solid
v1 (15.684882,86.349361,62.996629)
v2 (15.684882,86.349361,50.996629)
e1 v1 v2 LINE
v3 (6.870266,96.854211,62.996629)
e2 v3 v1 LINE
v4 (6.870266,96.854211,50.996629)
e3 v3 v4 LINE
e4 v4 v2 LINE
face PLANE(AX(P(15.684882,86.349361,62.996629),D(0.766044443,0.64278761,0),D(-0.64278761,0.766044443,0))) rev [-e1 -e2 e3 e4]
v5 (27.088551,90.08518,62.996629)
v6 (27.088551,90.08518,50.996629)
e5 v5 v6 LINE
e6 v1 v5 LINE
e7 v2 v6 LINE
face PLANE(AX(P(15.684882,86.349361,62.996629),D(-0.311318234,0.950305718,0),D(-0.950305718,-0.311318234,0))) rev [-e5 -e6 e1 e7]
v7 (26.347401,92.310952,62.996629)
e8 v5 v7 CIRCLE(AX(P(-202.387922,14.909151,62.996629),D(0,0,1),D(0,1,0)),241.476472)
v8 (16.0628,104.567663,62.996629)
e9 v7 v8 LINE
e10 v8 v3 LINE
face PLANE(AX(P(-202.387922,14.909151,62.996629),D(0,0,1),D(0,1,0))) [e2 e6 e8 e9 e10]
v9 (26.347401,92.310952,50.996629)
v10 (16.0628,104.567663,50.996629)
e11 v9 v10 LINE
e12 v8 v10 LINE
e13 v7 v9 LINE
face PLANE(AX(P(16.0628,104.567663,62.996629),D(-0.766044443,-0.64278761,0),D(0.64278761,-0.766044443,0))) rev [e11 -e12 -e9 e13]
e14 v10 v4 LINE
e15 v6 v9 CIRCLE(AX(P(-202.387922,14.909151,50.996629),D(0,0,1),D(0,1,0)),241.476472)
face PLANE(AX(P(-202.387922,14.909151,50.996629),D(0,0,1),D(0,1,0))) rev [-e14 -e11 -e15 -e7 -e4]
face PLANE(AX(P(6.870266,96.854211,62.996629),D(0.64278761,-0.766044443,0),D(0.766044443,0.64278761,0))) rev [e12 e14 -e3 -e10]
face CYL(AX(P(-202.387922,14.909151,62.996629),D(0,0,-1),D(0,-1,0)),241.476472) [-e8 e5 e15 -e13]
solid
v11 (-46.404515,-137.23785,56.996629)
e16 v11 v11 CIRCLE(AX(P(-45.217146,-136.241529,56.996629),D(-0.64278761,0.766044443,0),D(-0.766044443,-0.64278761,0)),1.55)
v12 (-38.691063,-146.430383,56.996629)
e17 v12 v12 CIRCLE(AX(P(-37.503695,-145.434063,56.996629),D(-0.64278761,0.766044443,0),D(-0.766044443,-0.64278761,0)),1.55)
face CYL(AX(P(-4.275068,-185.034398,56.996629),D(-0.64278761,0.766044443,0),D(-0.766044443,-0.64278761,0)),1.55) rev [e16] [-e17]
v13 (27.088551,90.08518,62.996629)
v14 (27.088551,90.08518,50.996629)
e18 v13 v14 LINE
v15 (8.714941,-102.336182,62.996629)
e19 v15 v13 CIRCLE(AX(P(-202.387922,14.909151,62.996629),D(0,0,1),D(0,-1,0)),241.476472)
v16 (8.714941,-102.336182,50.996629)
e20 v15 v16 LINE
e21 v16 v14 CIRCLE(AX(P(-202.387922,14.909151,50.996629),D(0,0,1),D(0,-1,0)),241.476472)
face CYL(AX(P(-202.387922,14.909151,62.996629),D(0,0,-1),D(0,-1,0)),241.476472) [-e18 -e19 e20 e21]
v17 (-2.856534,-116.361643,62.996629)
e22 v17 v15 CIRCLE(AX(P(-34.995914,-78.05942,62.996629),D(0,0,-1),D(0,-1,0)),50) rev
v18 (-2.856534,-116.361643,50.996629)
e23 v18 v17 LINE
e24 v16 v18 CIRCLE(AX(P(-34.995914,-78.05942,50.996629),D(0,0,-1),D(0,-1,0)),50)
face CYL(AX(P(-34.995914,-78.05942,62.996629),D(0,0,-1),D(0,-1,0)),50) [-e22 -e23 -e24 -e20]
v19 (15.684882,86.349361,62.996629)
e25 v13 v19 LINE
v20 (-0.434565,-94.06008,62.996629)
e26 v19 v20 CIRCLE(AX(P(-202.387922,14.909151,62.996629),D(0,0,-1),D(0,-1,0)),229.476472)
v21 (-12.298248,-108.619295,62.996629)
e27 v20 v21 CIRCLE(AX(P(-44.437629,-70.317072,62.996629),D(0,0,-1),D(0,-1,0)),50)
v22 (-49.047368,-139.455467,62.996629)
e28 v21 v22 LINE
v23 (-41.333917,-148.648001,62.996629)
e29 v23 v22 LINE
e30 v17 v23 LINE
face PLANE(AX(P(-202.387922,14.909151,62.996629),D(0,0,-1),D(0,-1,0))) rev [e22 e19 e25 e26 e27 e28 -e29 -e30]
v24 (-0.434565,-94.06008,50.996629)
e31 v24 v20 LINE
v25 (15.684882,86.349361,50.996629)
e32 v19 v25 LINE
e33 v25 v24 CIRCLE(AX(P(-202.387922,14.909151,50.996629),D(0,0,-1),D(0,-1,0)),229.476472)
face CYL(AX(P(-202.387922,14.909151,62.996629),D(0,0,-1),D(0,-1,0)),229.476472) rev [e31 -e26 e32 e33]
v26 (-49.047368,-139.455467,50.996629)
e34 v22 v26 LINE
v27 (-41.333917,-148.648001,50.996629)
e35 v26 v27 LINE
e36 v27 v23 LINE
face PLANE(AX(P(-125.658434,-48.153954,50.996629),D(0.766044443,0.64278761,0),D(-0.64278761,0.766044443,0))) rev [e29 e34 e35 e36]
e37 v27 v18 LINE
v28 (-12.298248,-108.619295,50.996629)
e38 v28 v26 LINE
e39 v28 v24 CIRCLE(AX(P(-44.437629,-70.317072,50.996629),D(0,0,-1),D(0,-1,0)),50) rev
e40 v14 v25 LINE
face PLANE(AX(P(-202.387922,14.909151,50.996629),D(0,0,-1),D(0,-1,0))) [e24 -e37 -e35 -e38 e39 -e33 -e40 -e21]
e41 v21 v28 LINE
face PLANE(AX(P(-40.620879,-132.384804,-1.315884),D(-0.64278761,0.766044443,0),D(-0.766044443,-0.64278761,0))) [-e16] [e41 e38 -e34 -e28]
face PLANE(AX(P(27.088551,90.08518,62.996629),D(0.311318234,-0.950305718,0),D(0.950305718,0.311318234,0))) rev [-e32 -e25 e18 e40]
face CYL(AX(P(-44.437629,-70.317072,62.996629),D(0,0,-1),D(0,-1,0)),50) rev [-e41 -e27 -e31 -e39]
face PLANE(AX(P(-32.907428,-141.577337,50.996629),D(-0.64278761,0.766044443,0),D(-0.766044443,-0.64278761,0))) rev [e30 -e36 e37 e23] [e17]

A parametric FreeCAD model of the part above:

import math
import FreeCAD as App
import Part
import Sketcher
from FreeCAD import Vector
Q = App.Units.Quantity


def edges_at(feature, points):
    """Names of the edges that pass closest to the given points."""
    edges = feature.Shape.Edges
    near = lambda p: min(range(len(edges)), key=lambda i: edges[i].distToShape(Part.Vertex(*p))[0])
    return sorted({f"Edge{near(p) + 1}" for p in points})


def add_polygon(sketch, points):
    """Adds a closed chain of lines whose ends are joined by coincident constraints."""
    first, n = sketch.GeometryCount, len(points)
    for a, b in zip(points, points[1:] + points[:1]):
        sketch.addGeometry(Part.LineSegment(App.Vector(*a, 0), App.Vector(*b, 0)), False)
    for i in range(n):
        sketch.addConstraint(Sketcher.Constraint("Coincident", first + i, 2, first + (i + 1) % n, 1))

doc = App.newDocument("Part")
body = doc.addObject("PartDesign::Body", "Body")

# Sketch on YZ plane
sketch1 = body.newObject("Sketcher::SketchObject", "Sketch")
sketch1.AttachmentSupport = (doc.getObject("YZ_Plane"), [""])
sketch1.MapMode = "FlatFace"
sketch1.addGeometry([
    Part.LineSegment(Vector(73, 231, 0), Vector(65, 240, 0)),
    Part.ArcOfCircle(Part.Circle(Vector(241, 75, 0), Vector(0, 0, 1), 241), math.radians(137), math.radians(198)),
    Part.LineSegment(Vector(12, 0, 0), Vector(23, 4, 0)),
    Part.ArcOfCircle(Part.Circle(Vector(241, 75, 0), Vector(0, 0, 1), 229), math.radians(137), math.radians(198)),
], False)
sketch1.addConstraint([
    Sketcher.Constraint("Coincident", 0, 2, 1, 1),
    Sketcher.Constraint("Coincident", 1, 2, 2, 1),
    Sketcher.Constraint("Coincident", 2, 2, 3, 2),
    Sketcher.Constraint("Coincident", 3, 1, 0, 1),
    Sketcher.Constraint("Coincident", 3, 3, 1, 3),
    Sketcher.Constraint("PointOnObject", 1, 2, -1),
    Sketcher.Constraint("Angle", 0, Q("130 deg")),
    Sketcher.Constraint("Distance", 2, Q("12 mm")),
    Sketcher.Constraint("DistanceX", -1, 1, 0, 2, Q("65 mm")),
    Sketcher.Constraint("DistanceY", -1, 1, 0, 2, Q("240 mm")),
    Sketcher.Constraint("DistanceX", -1, 1, 1, 2, Q("12 mm")),
    Sketcher.Constraint("Radius", 1, Q("241.476472 mm")),
    Sketcher.Constraint("DistanceX", -1, 1, 2, 2, Q("23.403669 mm")),
])
pad1 = body.newObject("PartDesign::Pad", "Pad")
pad1.Profile = sketch1
pad1.Length = 12

# Sketch on YZ plane
sketch2 = body.newObject("Sketcher::SketchObject", "Sketch001")
sketch2.AttachmentSupport = (doc.getObject("YZ_Plane"), [""])
sketch2.MapMode = "FlatFace"
sketch2.AttachmentOffset = App.Placement(Vector(0, 0, 12), App.Rotation())
add_polygon(sketch2, [(80, 222), (72, 232), (58, 220), (45, 193), (66, 211)])  # lines 0-4
sketch2.addConstraint([
    Sketcher.Constraint("Perpendicular", 0, 1),
    Sketcher.Constraint("Parallel", 1, 3),
    Sketcher.Constraint("Parallel", 3, 4),
    Sketcher.Constraint("Equal", 1, 4),
    Sketcher.Constraint("Angle", 0, Q("130 deg")),
    Sketcher.Constraint("Distance", 0, Q("12 mm")),
    Sketcher.Constraint("Distance", 1, Q("18 mm")),
    Sketcher.Constraint("Distance", 3, Q("27.927538 mm")),
    Sketcher.Constraint("DistanceX", -1, 1, 0, 2, Q("71.995979 mm")),
    Sketcher.Constraint("DistanceY", -1, 1, 1, 2, Q("220.09234 mm")),
])
pad2 = body.newObject("PartDesign::Pad", "Pad001")
pad2.Profile = sketch2
pad2.Length = 12
pad2.Reversed = True

# Sketch on YZ plane
sketch3 = body.newObject("Sketcher::SketchObject", "Sketch002")
sketch3.AttachmentSupport = (doc.getObject("YZ_Plane"), [""])
sketch3.MapMode = "FlatFace"
sketch3.AttachmentOffset = App.Placement(Vector(0, 0, 12), App.Rotation())
add_polygon(sketch3, [(34, 200), (72, 232), (65, 240), (30, 204)])  # lines 0-3
sketch3.addConstraint([
    Sketcher.Constraint("Perpendicular", 0, 1),
    Sketcher.Constraint("Parallel", 1, 3),
    Sketcher.Constraint("Angle", 0, Q("40 deg")),
    Sketcher.Constraint("DistanceX", -1, 1, 1, 2, Q("65 mm")),
    Sketcher.Constraint("DistanceY", -1, 1, 1, 2, Q("240 mm")),
    Sketcher.Constraint("Distance", 0, Q("50.019429 mm")),
    Sketcher.Constraint("Distance", 1, Q("10.883811 mm")),
    Sketcher.Constraint("Distance", 2, Q("50.225352 mm")),
])
pocket1 = body.newObject("PartDesign::Pocket", "Pocket")
pocket1.Profile = sketch3
pocket1.Type = "ThroughAll"
doc.recompute()

fillet = body.newObject("PartDesign::Fillet", "Fillet")
fillet.Base = (pocket1, edges_at(pocket1, [(6, 44.527, 192.948), (6, 35.285, 200.859)]))
fillet.Radius = 50

# Sketch on an angled plane
sketch4 = body.newObject("Sketcher::SketchObject", "Sketch003")
sketch4.Placement = App.Placement(Vector(0, 156.320496, 131.168471), App.Rotation(Vector(1, 0, 0), Vector(0, 0.64278761, -0.766044443), Vector(0, 0.766044443, 0.64278761), "ZXY"))
add_polygon(sketch4, [(0, -119), (0, -131), (12, -131), (12, -119)])  # lines 0-3
sketch4.addConstraint([
    Sketcher.Constraint("Vertical", 0),
    Sketcher.Constraint("Horizontal", 1),
    Sketcher.Constraint("Vertical", 2),
    Sketcher.Constraint("Horizontal", 3),
    Sketcher.Constraint("PointOnObject", 0, 2, -2),
    Sketcher.Constraint("Equal", 3, 0),
    Sketcher.Constraint("DistanceX", 1, 1, 1, 2, Q("12 mm")),
    Sketcher.Constraint("DistanceY", 0, 2, -1, 1, Q("131.185661 mm")),
])
pad3 = body.newObject("PartDesign::Pad", "Pad002")
pad3.Profile = sketch4
pad3.Length = 11

# Sketch on an angled plane
sketch5 = body.newObject("Sketcher::SketchObject", "Sketch004")
sketch5.Placement = App.Placement(Vector(0, -76.611066, 91.301513), App.Rotation(Vector(-1, 0, 0), Vector(0, 0.766044443, 0.64278761), Vector(0, 0.64278761, -0.766044443), "ZXY"))
sketch5.addGeometry(Part.Circle(Vector(-6, 210.1, 0), Vector(0, 0, 1), 1.6), False)
sketch5.addConstraint([
    Sketcher.Constraint("Diameter", 0, Q("3.1 mm")),
    Sketcher.Constraint("DistanceX", 0, 3, -1, 1, Q("6 mm")),
    Sketcher.Constraint("DistanceY", -1, 1, 0, 3, Q("210.061915 mm")),
])
pocket2 = body.newObject("PartDesign::Pocket", "Pocket001")
pocket2.Profile = sketch5
pocket2.Type = "ThroughAll"
body2 = doc.addObject("PartDesign::Body", "Body001")

# Sketch on YZ plane
sketch6 = body2.newObject("Sketcher::SketchObject", "Sketch005")
sketch6.AttachmentSupport = (doc.getObject("YZ_Plane001"), [""])
sketch6.MapMode = "FlatFace"
sketch6.addGeometry([
    Part.LineSegment(Vector(32.2, -6.8, 0), Vector(23.4, 3.7, 0)),  # 0
    Part.LineSegment(Vector(23.4, 3.7, 0), Vector(12, 0, 0)),  # 1
    Part.ArcOfCircle(Part.Circle(Vector(241.5, 75.2, 0), Vector(0, 0, 1), 241.5), math.radians(-161.86), math.radians(-161.3)),  # 2
    Part.LineSegment(Vector(12.7, -2.2, 0), Vector(23, -14.5, 0)),  # 3
    Part.LineSegment(Vector(23, -14.5, 0), Vector(32.2, -6.8, 0)),  # 4
], False)
sketch6.addConstraint([
    Sketcher.Constraint("Coincident", 0, 2, 1, 1),
    Sketcher.Constraint("Coincident", 1, 2, 2, 1),
    Sketcher.Constraint("Coincident", 2, 2, 3, 1),
    Sketcher.Constraint("Coincident", 3, 2, 4, 1),
    Sketcher.Constraint("Coincident", 4, 2, 0, 1),
    Sketcher.Constraint("PointOnObject", 1, 2, -1),
    Sketcher.Constraint("Parallel", 0, 3),
    Sketcher.Constraint("Perpendicular", 3, 4),
    Sketcher.Constraint("Equal", 1, 4),
    Sketcher.Constraint("Angle", 0, Q("130 deg")),
    Sketcher.Constraint("Distance", 1, Q("12 mm")),
    Sketcher.Constraint("Distance", 3, Q("16 mm")),
    Sketcher.Constraint("DistanceX", -1, 1, 1, 2, Q("12 mm")),
    Sketcher.Constraint("Radius", 2, Q("241.476475 mm")),
    Sketcher.Constraint("DistanceY", 2, 2, 2, 3, Q("77.401802 mm")),
    Sketcher.Constraint("DistanceY", -1, 1, 2, 3, Q("75.17603 mm")),
])
pad4 = body2.newObject("PartDesign::Pad", "Pad003")
pad4.Profile = sketch6
pad4.Length = 12
body3 = doc.addObject("PartDesign::Body", "Body002")
doc.recompute()

body.Placement = App.Placement(Vector(39.088551, 90.08518, 50.996629), App.Rotation(Vector(0.577350269, -0.577350269, 0.577350269), 120))
boolean = body3.newObject("PartDesign::Boolean", "Boolean")
boolean.Type = "Fuse"
boolean.addObjects([body])
body4 = doc.addObject("PartDesign::Body", "Body003")
doc.recompute()

body2.Placement = App.Placement(Vector(39.088551, 90.08518, 50.996629), App.Rotation(Vector(0.577350269, -0.577350269, 0.577350269), 120))
boolean2 = body4.newObject("PartDesign::Boolean", "Boolean001")
boolean2.Type = "Fuse"
boolean2.addObjects([body2])

doc.recompute()
